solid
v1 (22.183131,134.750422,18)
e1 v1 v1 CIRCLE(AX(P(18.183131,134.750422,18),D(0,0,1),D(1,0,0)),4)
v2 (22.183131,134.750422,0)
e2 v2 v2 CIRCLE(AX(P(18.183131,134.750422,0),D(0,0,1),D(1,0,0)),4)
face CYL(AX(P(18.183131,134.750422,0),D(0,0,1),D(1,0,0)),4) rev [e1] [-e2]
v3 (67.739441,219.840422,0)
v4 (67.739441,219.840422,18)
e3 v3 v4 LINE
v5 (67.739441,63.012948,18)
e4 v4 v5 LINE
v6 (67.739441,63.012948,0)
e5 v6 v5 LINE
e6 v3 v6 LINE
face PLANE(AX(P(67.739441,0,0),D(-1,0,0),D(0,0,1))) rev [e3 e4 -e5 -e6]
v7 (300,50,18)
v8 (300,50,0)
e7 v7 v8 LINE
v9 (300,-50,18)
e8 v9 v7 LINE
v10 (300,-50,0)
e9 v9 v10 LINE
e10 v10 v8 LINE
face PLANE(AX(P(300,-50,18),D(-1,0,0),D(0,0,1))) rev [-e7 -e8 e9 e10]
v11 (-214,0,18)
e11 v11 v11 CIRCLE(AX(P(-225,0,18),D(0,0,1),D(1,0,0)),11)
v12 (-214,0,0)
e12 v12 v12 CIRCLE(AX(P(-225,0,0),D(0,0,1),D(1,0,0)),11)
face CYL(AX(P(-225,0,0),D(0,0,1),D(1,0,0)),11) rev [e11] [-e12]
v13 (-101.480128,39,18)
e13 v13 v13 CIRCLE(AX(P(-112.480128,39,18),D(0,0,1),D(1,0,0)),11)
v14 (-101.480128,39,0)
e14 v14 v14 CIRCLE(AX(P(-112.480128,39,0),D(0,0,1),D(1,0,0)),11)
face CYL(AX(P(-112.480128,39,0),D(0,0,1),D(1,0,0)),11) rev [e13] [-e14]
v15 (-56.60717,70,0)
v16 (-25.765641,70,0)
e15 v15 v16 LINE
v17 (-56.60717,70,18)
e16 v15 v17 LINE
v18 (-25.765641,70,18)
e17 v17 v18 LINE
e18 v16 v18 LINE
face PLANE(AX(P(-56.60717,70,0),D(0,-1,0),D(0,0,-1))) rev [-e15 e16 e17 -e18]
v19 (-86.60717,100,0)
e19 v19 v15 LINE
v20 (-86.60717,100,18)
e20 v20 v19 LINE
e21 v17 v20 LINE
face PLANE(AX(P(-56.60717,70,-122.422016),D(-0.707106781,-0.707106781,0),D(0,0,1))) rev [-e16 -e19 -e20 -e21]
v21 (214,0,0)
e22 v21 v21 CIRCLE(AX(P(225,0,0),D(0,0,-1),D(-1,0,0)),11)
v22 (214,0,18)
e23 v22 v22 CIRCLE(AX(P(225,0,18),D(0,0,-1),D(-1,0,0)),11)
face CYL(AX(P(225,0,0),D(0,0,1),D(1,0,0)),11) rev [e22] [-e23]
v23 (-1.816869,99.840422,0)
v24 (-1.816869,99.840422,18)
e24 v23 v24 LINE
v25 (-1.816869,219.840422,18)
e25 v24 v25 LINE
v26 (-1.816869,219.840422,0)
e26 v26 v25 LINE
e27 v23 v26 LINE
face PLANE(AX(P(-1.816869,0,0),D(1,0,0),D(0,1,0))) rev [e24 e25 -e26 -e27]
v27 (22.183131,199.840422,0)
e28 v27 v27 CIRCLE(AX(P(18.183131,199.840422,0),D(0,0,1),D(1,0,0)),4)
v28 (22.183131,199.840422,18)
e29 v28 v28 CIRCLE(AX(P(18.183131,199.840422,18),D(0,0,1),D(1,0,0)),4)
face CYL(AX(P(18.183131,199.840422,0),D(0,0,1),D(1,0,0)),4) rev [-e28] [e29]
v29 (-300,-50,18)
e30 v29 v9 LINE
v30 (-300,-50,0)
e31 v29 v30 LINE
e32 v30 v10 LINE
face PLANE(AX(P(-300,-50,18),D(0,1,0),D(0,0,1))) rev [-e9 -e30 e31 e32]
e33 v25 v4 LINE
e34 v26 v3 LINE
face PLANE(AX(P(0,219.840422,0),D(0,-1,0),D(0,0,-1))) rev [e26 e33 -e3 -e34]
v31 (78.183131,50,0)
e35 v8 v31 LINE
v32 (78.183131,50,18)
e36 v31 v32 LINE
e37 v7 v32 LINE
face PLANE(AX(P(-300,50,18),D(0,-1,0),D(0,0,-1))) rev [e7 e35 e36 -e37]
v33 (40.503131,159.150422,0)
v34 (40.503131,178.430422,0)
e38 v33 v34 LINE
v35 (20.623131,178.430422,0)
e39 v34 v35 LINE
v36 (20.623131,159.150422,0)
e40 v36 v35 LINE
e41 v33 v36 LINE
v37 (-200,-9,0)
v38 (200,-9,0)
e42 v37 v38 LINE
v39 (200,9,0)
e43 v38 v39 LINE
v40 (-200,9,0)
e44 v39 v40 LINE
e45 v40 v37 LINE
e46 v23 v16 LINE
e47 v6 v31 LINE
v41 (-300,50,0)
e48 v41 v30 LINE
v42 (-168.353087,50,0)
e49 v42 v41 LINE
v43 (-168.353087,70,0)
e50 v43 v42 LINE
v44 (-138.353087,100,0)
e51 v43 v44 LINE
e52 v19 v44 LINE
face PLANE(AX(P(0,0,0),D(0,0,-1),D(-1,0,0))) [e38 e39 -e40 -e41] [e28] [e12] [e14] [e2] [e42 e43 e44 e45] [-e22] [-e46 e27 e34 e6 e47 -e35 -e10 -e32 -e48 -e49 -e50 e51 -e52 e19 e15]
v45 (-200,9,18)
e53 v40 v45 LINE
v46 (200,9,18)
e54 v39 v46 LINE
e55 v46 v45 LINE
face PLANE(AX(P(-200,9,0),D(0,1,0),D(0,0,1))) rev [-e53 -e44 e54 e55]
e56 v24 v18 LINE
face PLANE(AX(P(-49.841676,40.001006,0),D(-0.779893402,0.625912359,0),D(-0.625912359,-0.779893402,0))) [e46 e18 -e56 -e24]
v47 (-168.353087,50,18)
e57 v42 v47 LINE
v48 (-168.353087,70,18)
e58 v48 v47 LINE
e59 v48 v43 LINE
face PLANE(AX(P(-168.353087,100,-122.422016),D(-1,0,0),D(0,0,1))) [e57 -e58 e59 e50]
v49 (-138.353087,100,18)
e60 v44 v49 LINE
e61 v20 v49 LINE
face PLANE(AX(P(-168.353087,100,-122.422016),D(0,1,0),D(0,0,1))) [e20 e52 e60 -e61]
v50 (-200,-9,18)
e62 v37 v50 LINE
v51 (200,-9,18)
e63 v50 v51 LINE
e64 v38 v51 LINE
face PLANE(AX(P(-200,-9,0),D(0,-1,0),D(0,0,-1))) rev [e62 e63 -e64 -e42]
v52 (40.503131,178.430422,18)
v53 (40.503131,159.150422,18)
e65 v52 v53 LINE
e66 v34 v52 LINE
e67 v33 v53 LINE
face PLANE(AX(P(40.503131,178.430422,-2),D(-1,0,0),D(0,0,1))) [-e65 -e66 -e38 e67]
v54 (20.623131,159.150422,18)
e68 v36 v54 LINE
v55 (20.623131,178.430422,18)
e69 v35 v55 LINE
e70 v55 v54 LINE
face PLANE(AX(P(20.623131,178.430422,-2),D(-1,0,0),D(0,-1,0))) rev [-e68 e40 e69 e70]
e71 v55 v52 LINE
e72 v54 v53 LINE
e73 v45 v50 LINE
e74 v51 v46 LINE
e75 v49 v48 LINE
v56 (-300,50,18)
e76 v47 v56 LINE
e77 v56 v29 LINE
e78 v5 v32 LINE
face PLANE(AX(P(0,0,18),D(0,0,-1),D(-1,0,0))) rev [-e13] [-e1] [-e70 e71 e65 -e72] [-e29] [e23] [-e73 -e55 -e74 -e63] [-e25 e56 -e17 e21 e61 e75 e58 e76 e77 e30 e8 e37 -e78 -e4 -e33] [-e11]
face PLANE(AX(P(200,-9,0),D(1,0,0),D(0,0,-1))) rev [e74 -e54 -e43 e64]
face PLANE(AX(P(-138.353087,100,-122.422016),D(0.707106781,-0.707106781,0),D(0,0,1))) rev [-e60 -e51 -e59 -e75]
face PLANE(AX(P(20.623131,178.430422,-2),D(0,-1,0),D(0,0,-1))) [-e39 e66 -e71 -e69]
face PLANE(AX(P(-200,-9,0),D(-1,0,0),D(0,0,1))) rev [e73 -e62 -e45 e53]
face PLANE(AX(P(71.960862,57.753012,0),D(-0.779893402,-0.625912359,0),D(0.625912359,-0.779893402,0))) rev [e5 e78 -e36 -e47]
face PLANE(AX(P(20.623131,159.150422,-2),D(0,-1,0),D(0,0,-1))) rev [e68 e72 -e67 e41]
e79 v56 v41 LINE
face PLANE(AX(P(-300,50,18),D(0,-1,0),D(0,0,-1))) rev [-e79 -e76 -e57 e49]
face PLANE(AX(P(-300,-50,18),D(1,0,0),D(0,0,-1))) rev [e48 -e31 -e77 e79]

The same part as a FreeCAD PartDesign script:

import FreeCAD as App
import Part
import Sketcher
Q = App.Units.Quantity


def edges_at(feature, points):
    """Names of the edges that pass closest to the given points."""
    edges = feature.Shape.Edges
    near = lambda p: min(range(len(edges)), key=lambda i: edges[i].distToShape(Part.Vertex(*p))[0])
    return sorted({f"Edge{near(p) + 1}" for p in points})


def add_polygon(sketch, points):
    """Adds a closed chain of lines whose ends are joined by coincident constraints."""
    first, n = sketch.GeometryCount, len(points)
    for a, b in zip(points, points[1:] + points[:1]):
        sketch.addGeometry(Part.LineSegment(App.Vector(*a, 0), App.Vector(*b, 0)), False)
    for i in range(n):
        sketch.addConstraint(Sketcher.Constraint("Coincident", first + i, 2, first + (i + 1) % n, 1))

doc = App.newDocument("Part")
body = doc.addObject("PartDesign::Body", "Body")

# Sketch on XY plane
sketch1 = body.newObject("Sketcher::SketchObject", "Sketch")
sketch1.AttachmentSupport = (doc.getObject("XY_Plane"), [""])
sketch1.MapMode = "FlatFace"
add_polygon(sketch1, [(-300, 50), (-300, -50), (300, -50), (300, 50)])  # lines 0-3
sketch1.addConstraint(Sketcher.Constraint("Vertical", 0))
sketch1.addConstraint(Sketcher.Constraint("Horizontal", 1))
sketch1.addConstraint(Sketcher.Constraint("Vertical", 2))
sketch1.addConstraint(Sketcher.Constraint("Horizontal", 3))
sketch1.addConstraint(Sketcher.Constraint("Symmetric", 0, 2, 2, 2, -1, 1))
sketch1.addConstraint(Sketcher.Constraint("DistanceX", 1, 1, 1, 2, Q("600 mm")))
sketch1.addConstraint(Sketcher.Constraint("DistanceY", 0, 2, 0, 1, Q("100 mm")))
pad1 = body.newObject("PartDesign::Pad", "Pad")
pad1.Profile = sketch1
pad1.Length = 18

# Sketch on XY plane
sketch2 = body.newObject("Sketcher::SketchObject", "Sketch001")
sketch2.AttachmentSupport = (doc.getObject("XY_Plane"), [""])
sketch2.MapMode = "FlatFace"
sketch2.AttachmentOffset = App.Placement(App.Vector(0, 0, 18), App.Rotation())
add_polygon(sketch2, [(-200, 9), (-200, -9), (200, -9), (200, 9)])  # lines 0-3
sketch2.addConstraint(Sketcher.Constraint("Vertical", 0))
sketch2.addConstraint(Sketcher.Constraint("Horizontal", 1))
sketch2.addConstraint(Sketcher.Constraint("Vertical", 2))
sketch2.addConstraint(Sketcher.Constraint("Horizontal", 3))
sketch2.addConstraint(Sketcher.Constraint("Symmetric", 0, 2, 2, 2, -1, 1))
sketch2.addConstraint(Sketcher.Constraint("DistanceX", 1, 1, 1, 2, Q("400 mm")))
sketch2.addConstraint(Sketcher.Constraint("DistanceY", 0, 2, 0, 1, Q("18 mm")))
pocket1 = body.newObject("PartDesign::Pocket", "Pocket")
pocket1.Profile = sketch2
pocket1.Length = 18

# Sketch on XY plane
sketch3 = body.newObject("Sketcher::SketchObject", "Sketch002")
sketch3.AttachmentSupport = (doc.getObject("XY_Plane"), [""])
sketch3.MapMode = "FlatFace"
sketch3.AttachmentOffset = App.Placement(App.Vector(0, 0, 18), App.Rotation())
sketch3.addGeometry(Part.Circle(App.Vector(-225, 0, 0), App.Vector(0, 0, 1), 11), False)
sketch3.addConstraint(Sketcher.Constraint("PointOnObject", 0, 3, -1))
sketch3.addConstraint(Sketcher.Constraint("Diameter", 0, Q("22 mm")))
sketch3.addConstraint(Sketcher.Constraint("DistanceX", 0, 3, -1, 1, Q("225 mm")))
pocket2 = body.newObject("PartDesign::Pocket", "Pocket001")
pocket2.Profile = sketch3
pocket2.Length = 18
doc.recompute()

mirrored = body.newObject("PartDesign::Mirrored", "Mirrored")
mirrored.Originals = [pocket2]
mirrored.MirrorPlane = (doc.getObject("YZ_Plane"), [""])
body.Tip = mirrored

# Sketch on XY plane
sketch4 = body.newObject("Sketcher::SketchObject", "Sketch003")
sketch4.AttachmentSupport = (doc.getObject("XY_Plane"), [""])
sketch4.MapMode = "FlatFace"
sketch4.AttachmentOffset = App.Placement(App.Vector(0, 0, 18), App.Rotation())
add_polygon(sketch4, [(-168, 100), (-168, 50), (-57, 50), (-57, 100)])  # lines 0-3
sketch4.addConstraint(Sketcher.Constraint("Vertical", 0))
sketch4.addConstraint(Sketcher.Constraint("Horizontal", 1))
sketch4.addConstraint(Sketcher.Constraint("Vertical", 2))
sketch4.addConstraint(Sketcher.Constraint("Horizontal", 3))
sketch4.addConstraint(Sketcher.Constraint("DistanceY", 0, 2, 0, 1, Q("50 mm")))
sketch4.addConstraint(Sketcher.Constraint("DistanceY", -1, 1, 0, 2, Q("50 mm")))
sketch4.addConstraint(Sketcher.Constraint("DistanceX", 1, 1, 1, 2, Q("111.745918 mm")))
sketch4.addConstraint(Sketcher.Constraint("DistanceX", 1, 2, -1, 1, Q("56.60717 mm")))
pad2 = body.newObject("PartDesign::Pad", "Pad001")
pad2.Profile = sketch4
pad2.Length = 18
pad2.Reversed = True

# Sketch on XY plane
sketch5 = body.newObject("Sketcher::SketchObject", "Sketch004")
sketch5.AttachmentSupport = (doc.getObject("XY_Plane"), [""])
sketch5.MapMode = "FlatFace"
sketch5.AttachmentOffset = App.Placement(App.Vector(0, 0, 18), App.Rotation())
sketch5.addGeometry(Part.Circle(App.Vector(-112, 39, 0), App.Vector(0, 0, 1), 11), False)
sketch5.addConstraint(Sketcher.Constraint("Diameter", 0, Q("22 mm")))
sketch5.addConstraint(Sketcher.Constraint("DistanceY", -1, 1, 0, 3, Q("39 mm")))
sketch5.addConstraint(Sketcher.Constraint("DistanceX", 0, 3, -1, 1, Q("112.480128 mm")))
pocket3 = body.newObject("PartDesign::Pocket", "Pocket002")
pocket3.Profile = sketch5
pocket3.Length = 18
doc.recompute()

chamfer = body.newObject("PartDesign::Chamfer", "Chamfer")
chamfer.Base = (pocket3, edges_at(pocket3, [(-168.353, 100, 9), (-56.607, 100, 9)]))
chamfer.Size = 30

# Sketch on XY plane
sketch6 = body.newObject("Sketcher::SketchObject", "Sketch005")
sketch6.AttachmentSupport = (doc.getObject("XY_Plane"), [""])
sketch6.MapMode = "FlatFace"
sketch6.AttachmentOffset = App.Placement(App.Vector(0, 0, 18), App.Rotation())
add_polygon(sketch6, [(-1.8, 219.8), (-1.8, 99.8), (-41.8, 50), (78.2, 50), (67.7, 63), (67.7, 219.8)])  # lines 0-5
sketch6.addGeometry(Part.Circle(App.Vector(18.2, 134.8, 0), App.Vector(0, 0, 1), 4), False)  # 6
sketch6.addGeometry(Part.Circle(App.Vector(18.2, 199.8, 0), App.Vector(0, 0, 1), 4), False)  # 7
sketch6.addConstraint(Sketcher.Constraint("Vertical", 0))
sketch6.addConstraint(Sketcher.Constraint("Horizontal", 2))
sketch6.addConstraint(Sketcher.Constraint("Vertical", 4))
sketch6.addConstraint(Sketcher.Constraint("Horizontal", 5))
sketch6.addConstraint(Sketcher.Constraint("Equal", 6, 7))
sketch6.addConstraint(Sketcher.Constraint("Vertical", 6, 3, 7, 3))
sketch6.addConstraint(Sketcher.Constraint("Equal", 2, 0))
sketch6.addConstraint(Sketcher.Constraint("Diameter", 6, Q("8 mm")))
sketch6.addConstraint(Sketcher.Constraint("DistanceX", 2, 1, 2, 2, Q("120 mm")))
sketch6.addConstraint(Sketcher.Constraint("DistanceY", -1, 1, 1, 2, Q("50 mm")))
sketch6.addConstraint(Sketcher.Constraint("DistanceX", 0, 2, 6, 3, Q("20 mm")))
sketch6.addConstraint(Sketcher.Constraint("DistanceY", 0, 2, 7, 3, Q("100 mm")))
sketch6.addConstraint(Sketcher.Constraint("DistanceX", 1, 2, 0, 2, Q("40 mm")))
sketch6.addConstraint(Sketcher.Constraint("DistanceY", 6, 3, 7, 3, Q("65.09 mm")))
sketch6.addConstraint(Sketcher.Constraint("DistanceX", 5, 2, 5, 1, Q("69.55631 mm")))
sketch6.addConstraint(Sketcher.Constraint("Distance", 1, Q("63.906711 mm")))
sketch6.addConstraint(Sketcher.Constraint("DistanceY", 4, 1, 4, 2, Q("156.827474 mm")))
sketch6.addConstraint(Sketcher.Constraint("DistanceX", -1, 1, 6, 3, Q("18.183131 mm")))
pad3 = body.newObject("PartDesign::Pad", "Pad002")
pad3.Profile = sketch6
pad3.Length = 18
pad3.Reversed = True

# Sketch on XY plane
sketch7 = body.newObject("Sketcher::SketchObject", "Sketch006")
sketch7.AttachmentSupport = (doc.getObject("XY_Plane"), [""])
sketch7.MapMode = "FlatFace"
sketch7.AttachmentOffset = App.Placement(App.Vector(0, 0, 18), App.Rotation())
add_polygon(sketch7, [(-26, 70), (-57, 70), (-57, 50), (-42, 50)])  # lines 0-3
sketch7.addConstraint(Sketcher.Constraint("Horizontal", 0))
sketch7.addConstraint(Sketcher.Constraint("Vertical", 1))
sketch7.addConstraint(Sketcher.Constraint("Horizontal", 2))
sketch7.addConstraint(Sketcher.Constraint("DistanceY", 1, 2, 1, 1, Q("20 mm")))
sketch7.addConstraint(Sketcher.Constraint("DistanceY", -1, 1, 0, 2, Q("70 mm")))
sketch7.addConstraint(Sketcher.Constraint("DistanceX", 2, 1, 2, 2, Q("14.7903 mm")))
sketch7.addConstraint(Sketcher.Constraint("DistanceX", 0, 2, 0, 1, Q("30.841529 mm")))
sketch7.addConstraint(Sketcher.Constraint("DistanceX", 0, 2, -1, 1, Q("56.60717 mm")))
pad4 = body.newObject("PartDesign::Pad", "Pad003")
pad4.Profile = sketch7
pad4.Length = 18
pad4.Reversed = True

# Sketch on XY plane
sketch8 = body.newObject("Sketcher::SketchObject", "Sketch007")
sketch8.AttachmentSupport = (doc.getObject("XY_Plane"), [""])
sketch8.MapMode = "FlatFace"
sketch8.AttachmentOffset = App.Placement(App.Vector(0, 0, 18), App.Rotation())
add_polygon(sketch8, [(21, 178), (21, 159), (41, 159), (41, 178)])  # lines 0-3
sketch8.addConstraint(Sketcher.Constraint("Vertical", 0))
sketch8.addConstraint(Sketcher.Constraint("Horizontal", 1))
sketch8.addConstraint(Sketcher.Constraint("Vertical", 2))
sketch8.addConstraint(Sketcher.Constraint("Horizontal", 3))
sketch8.addConstraint(Sketcher.Constraint("DistanceX", 1, 1, 1, 2, Q("19.88 mm")))
sketch8.addConstraint(Sketcher.Constraint("DistanceY", 0, 2, 0, 1, Q("19.28 mm")))
sketch8.addConstraint(Sketcher.Constraint("DistanceX", -1, 1, 0, 2, Q("20.623131 mm")))
sketch8.addConstraint(Sketcher.Constraint("DistanceY", -1, 1, 0, 2, Q("159.150422 mm")))
pocket4 = body.newObject("PartDesign::Pocket", "Pocket003")
pocket4.Profile = sketch8
pocket4.Length = 20

doc.recompute()
